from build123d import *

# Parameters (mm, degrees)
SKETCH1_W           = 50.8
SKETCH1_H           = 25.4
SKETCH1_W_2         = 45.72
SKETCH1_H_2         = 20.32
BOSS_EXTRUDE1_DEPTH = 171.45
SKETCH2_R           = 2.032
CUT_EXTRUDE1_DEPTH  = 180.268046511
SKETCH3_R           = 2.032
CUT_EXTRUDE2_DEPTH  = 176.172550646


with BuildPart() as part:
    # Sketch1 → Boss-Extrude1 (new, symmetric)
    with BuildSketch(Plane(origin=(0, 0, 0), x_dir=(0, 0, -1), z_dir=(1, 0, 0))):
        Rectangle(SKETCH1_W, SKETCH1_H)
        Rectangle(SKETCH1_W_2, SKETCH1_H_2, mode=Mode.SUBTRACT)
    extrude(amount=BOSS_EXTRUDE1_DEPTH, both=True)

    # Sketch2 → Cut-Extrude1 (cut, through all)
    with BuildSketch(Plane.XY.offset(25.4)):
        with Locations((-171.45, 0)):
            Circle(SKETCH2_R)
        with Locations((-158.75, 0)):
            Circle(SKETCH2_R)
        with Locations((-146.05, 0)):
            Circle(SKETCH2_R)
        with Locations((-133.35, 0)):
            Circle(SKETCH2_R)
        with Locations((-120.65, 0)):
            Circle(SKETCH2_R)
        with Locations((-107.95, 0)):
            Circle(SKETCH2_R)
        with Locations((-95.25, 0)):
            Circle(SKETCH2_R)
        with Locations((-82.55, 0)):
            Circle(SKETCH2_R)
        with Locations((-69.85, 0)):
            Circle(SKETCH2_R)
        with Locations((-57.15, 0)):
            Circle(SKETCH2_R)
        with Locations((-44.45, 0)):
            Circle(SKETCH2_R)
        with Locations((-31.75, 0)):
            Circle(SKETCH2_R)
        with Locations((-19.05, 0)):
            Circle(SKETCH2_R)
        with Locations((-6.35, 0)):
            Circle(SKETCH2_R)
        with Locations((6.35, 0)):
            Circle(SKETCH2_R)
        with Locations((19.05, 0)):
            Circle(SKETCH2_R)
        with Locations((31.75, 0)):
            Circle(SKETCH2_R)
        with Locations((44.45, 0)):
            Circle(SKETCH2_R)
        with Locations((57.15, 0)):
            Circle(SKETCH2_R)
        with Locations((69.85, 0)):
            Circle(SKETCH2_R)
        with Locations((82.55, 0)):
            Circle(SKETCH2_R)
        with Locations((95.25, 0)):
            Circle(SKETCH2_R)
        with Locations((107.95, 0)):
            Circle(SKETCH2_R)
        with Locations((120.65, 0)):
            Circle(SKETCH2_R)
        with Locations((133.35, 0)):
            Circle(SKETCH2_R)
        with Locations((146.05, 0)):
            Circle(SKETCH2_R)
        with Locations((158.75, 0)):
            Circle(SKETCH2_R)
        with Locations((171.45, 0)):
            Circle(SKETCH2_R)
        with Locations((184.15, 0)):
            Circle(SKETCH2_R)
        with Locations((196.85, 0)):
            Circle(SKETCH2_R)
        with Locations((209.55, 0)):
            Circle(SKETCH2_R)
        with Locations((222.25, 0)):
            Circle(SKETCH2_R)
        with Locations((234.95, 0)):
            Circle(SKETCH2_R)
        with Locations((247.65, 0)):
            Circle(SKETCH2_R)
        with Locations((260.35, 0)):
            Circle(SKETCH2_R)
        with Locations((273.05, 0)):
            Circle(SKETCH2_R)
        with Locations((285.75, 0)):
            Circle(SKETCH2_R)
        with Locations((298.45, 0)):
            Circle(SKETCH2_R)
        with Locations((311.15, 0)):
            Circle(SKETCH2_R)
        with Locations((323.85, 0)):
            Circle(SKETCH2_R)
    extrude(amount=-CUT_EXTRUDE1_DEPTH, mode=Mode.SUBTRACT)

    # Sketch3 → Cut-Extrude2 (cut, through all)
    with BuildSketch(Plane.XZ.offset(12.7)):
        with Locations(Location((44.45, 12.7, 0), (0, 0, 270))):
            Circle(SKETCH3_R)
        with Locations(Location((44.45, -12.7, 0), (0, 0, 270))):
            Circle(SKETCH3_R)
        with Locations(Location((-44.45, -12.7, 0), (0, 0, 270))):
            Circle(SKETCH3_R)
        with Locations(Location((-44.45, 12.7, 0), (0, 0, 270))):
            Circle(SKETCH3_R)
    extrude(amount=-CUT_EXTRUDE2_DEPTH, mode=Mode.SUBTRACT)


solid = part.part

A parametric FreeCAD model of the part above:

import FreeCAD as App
import Part
import Sketcher

V = App.Vector
Q = App.Units.Quantity


def add_polygon(sketch, points):
    """Adds a closed chain of lines whose ends are joined by coincident constraints."""
    first, n = sketch.GeometryCount, len(points)
    for a, b in zip(points, points[1:] + points[:1]):
        sketch.addGeometry(Part.LineSegment(App.Vector(*a, 0), App.Vector(*b, 0)), False)
    for i in range(n):
        sketch.addConstraint(Sketcher.Constraint("Coincident", first + i, 2, first + (i + 1) % n, 1))

doc = App.newDocument("Part")
body = doc.addObject("PartDesign::Body", "Body")

# Sketch on YZ plane
sketch1 = body.newObject("Sketcher::SketchObject", "Sketch")
sketch1.AttachmentSupport = (doc.getObject("YZ_Plane"), [""])
sketch1.MapMode = "FlatFace"
add_polygon(sketch1, [(12.7, 25.4), (-12.7, 25.4), (-12.7, -25.4), (12.7, -25.4)])  # lines 0-3
add_polygon(sketch1, [(-10.16, -22.86), (-10.16, 22.86), (10.16, 22.86), (10.16, -22.86)])  # lines 4-7
sketch1.addConstraint([
    Sketcher.Constraint("Horizontal", 0),
    Sketcher.Constraint("Vertical", 1),
    Sketcher.Constraint("Horizontal", 2),
    Sketcher.Constraint("Vertical", 3),
    Sketcher.Constraint("Vertical", 4),
    Sketcher.Constraint("Horizontal", 5),
    Sketcher.Constraint("Vertical", 6),
    Sketcher.Constraint("Horizontal", 7),
    Sketcher.Constraint("Symmetric", 0, 2, 2, 2, -1, 1),
    Sketcher.Constraint("Symmetric", 4, 2, 6, 2, -1, 1),
    Sketcher.Constraint("DistanceX", 0, 2, 0, 1, Q("1 in")),
    Sketcher.Constraint("DistanceY", 1, 2, 1, 1, Q("2 in")),
    Sketcher.Constraint("DistanceX", 5, 1, 5, 2, Q("0.8 in")),
    Sketcher.Constraint("DistanceY", 4, 1, 4, 2, Q("1.8 in")),
])
pad1 = body.newObject("PartDesign::Pad", "Pad")
pad1.Profile = sketch1
pad1.Length = Q("13.5 in")
pad1.Midplane = True

# Sketch on XY plane
sketch2 = body.newObject("Sketcher::SketchObject", "Sketch001")
sketch2.AttachmentSupport = (doc.getObject("XY_Plane"), [""])
sketch2.MapMode = "FlatFace"
sketch2.AttachmentOffset = App.Placement(V(0, 0, 1 * 25.4), App.Rotation())
sketch2.addGeometry([
    Part.Circle(V(-171.45, 0, 0), V(0, 0, 1), 2.032),  # 0
    Part.Circle(V(-158.75, 0, 0), V(0, 0, 1), 2.032),  # 1
    Part.Circle(V(-146.05, 0, 0), V(0, 0, 1), 2.032),  # 2
    Part.Circle(V(-133.35, 0, 0), V(0, 0, 1), 2.032),  # 3
    Part.Circle(V(-120.65, 0, 0), V(0, 0, 1), 2.032),  # 4
    Part.Circle(V(-107.95, 0, 0), V(0, 0, 1), 2.032),  # 5
    Part.Circle(V(-95.25, 0, 0), V(0, 0, 1), 2.032),  # 6
    Part.Circle(V(-82.55, 0, 0), V(0, 0, 1), 2.032),  # 7
    Part.Circle(V(-69.85, 0, 0), V(0, 0, 1), 2.032),  # 8
    Part.Circle(V(-57.15, 0, 0), V(0, 0, 1), 2.032),  # 9
    Part.Circle(V(-44.45, 0, 0), V(0, 0, 1), 2.032),  # 10
    Part.Circle(V(-31.75, 0, 0), V(0, 0, 1), 2.032),  # 11
    Part.Circle(V(-19.05, 0, 0), V(0, 0, 1), 2.032),  # 12
    Part.Circle(V(-6.35, 0, 0), V(0, 0, 1), 2.032),  # 13
    Part.Circle(V(6.35, 0, 0), V(0, 0, 1), 2.032),  # 14
    Part.Circle(V(19.05, 0, 0), V(0, 0, 1), 2.032),  # 15
    Part.Circle(V(31.75, 0, 0), V(0, 0, 1), 2.032),  # 16
    Part.Circle(V(44.45, 0, 0), V(0, 0, 1), 2.032),  # 17
    Part.Circle(V(57.15, 0, 0), V(0, 0, 1), 2.032),  # 18
    Part.Circle(V(69.85, 0, 0), V(0, 0, 1), 2.032),  # 19
    Part.Circle(V(82.55, 0, 0), V(0, 0, 1), 2.032),  # 20
    Part.Circle(V(95.25, 0, 0), V(0, 0, 1), 2.032),  # 21
    Part.Circle(V(107.95, 0, 0), V(0, 0, 1), 2.032),  # 22
    Part.Circle(V(120.65, 0, 0), V(0, 0, 1), 2.032),  # 23
    Part.Circle(V(133.35, 0, 0), V(0, 0, 1), 2.032),  # 24
    Part.Circle(V(146.05, 0, 0), V(0, 0, 1), 2.032),  # 25
    Part.Circle(V(158.75, 0, 0), V(0, 0, 1), 2.032),  # 26
    Part.Circle(V(171.45, 0, 0), V(0, 0, 1), 2.032),  # 27
    Part.Circle(V(184.15, 0, 0), V(0, 0, 1), 2.032),  # 28
    Part.Circle(V(196.85, 0, 0), V(0, 0, 1), 2.032),  # 29
    Part.Circle(V(209.55, 0, 0), V(0, 0, 1), 2.032),  # 30
    Part.Circle(V(222.25, 0, 0), V(0, 0, 1), 2.032),  # 31
    Part.Circle(V(234.95, 0, 0), V(0, 0, 1), 2.032),  # 32
    Part.Circle(V(247.65, 0, 0), V(0, 0, 1), 2.032),  # 33
    Part.Circle(V(260.35, 0, 0), V(0, 0, 1), 2.032),  # 34
    Part.Circle(V(273.05, 0, 0), V(0, 0, 1), 2.032),  # 35
    Part.Circle(V(285.75, 0, 0), V(0, 0, 1), 2.032),  # 36
    Part.Circle(V(298.45, 0, 0), V(0, 0, 1), 2.032),  # 37
    Part.Circle(V(311.15, 0, 0), V(0, 0, 1), 2.032),  # 38
    Part.Circle(V(323.85, 0, 0), V(0, 0, 1), 2.032),  # 39
], False)
sketch2.addConstraint([
    Sketcher.Constraint("Equal", 0, 1),
    Sketcher.Constraint("Equal", 1, 2),
    Sketcher.Constraint("Equal", 2, 3),
    Sketcher.Constraint("Equal", 3, 4),
    Sketcher.Constraint("Equal", 4, 5),
    Sketcher.Constraint("Equal", 5, 6),
    Sketcher.Constraint("Equal", 6, 7),
    Sketcher.Constraint("Equal", 7, 8),
    Sketcher.Constraint("Equal", 8, 9),
    Sketcher.Constraint("Equal", 9, 10),
    Sketcher.Constraint("Equal", 10, 11),
    Sketcher.Constraint("Equal", 11, 12),
    Sketcher.Constraint("Equal", 12, 13),
    Sketcher.Constraint("Equal", 13, 14),
    Sketcher.Constraint("Equal", 14, 15),
    Sketcher.Constraint("Equal", 15, 16),
    Sketcher.Constraint("Equal", 16, 17),
    Sketcher.Constraint("Equal", 17, 18),
    Sketcher.Constraint("Equal", 18, 19),
    Sketcher.Constraint("Equal", 19, 20),
    Sketcher.Constraint("Equal", 20, 21),
    Sketcher.Constraint("Equal", 21, 22),
    Sketcher.Constraint("Equal", 22, 23),
    Sketcher.Constraint("Equal", 23, 24),
    Sketcher.Constraint("Equal", 24, 25),
    Sketcher.Constraint("Equal", 25, 26),
    Sketcher.Constraint("Equal", 26, 27),
    Sketcher.Constraint("Equal", 27, 28),
    Sketcher.Constraint("Equal", 28, 29),
    Sketcher.Constraint("Equal", 29, 30),
    Sketcher.Constraint("Equal", 30, 31),
    Sketcher.Constraint("Equal", 31, 32),
    Sketcher.Constraint("Equal", 32, 33),
    Sketcher.Constraint("Equal", 33, 34),
    Sketcher.Constraint("Equal", 34, 35),
    Sketcher.Constraint("Equal", 35, 36),
    Sketcher.Constraint("Equal", 36, 37),
    Sketcher.Constraint("Equal", 37, 38),
    Sketcher.Constraint("Equal", 38, 39),
    Sketcher.Constraint("Symmetric", 13, 3, 14, 3, -1, 1),
    Sketcher.Constraint("Symmetric", 12, 3, 15, 3, -1, 1),
    Sketcher.Constraint("Symmetric", 11, 3, 16, 3, -1, 1),
    Sketcher.Constraint("Symmetric", 10, 3, 17, 3, -1, 1),
    Sketcher.Constraint("Symmetric", 9, 3, 18, 3, -1, 1),
    Sketcher.Constraint("Symmetric", 8, 3, 19, 3, -1, 1),
    Sketcher.Constraint("Symmetric", 7, 3, 20, 3, -1, 1),
    Sketcher.Constraint("Symmetric", 6, 3, 21, 3, -1, 1),
    Sketcher.Constraint("Symmetric", 5, 3, 22, 3, -1, 1),
    Sketcher.Constraint("Symmetric", 4, 3, 23, 3, -1, 1),
    Sketcher.Constraint("Symmetric", 3, 3, 24, 3, -1, 1),
    Sketcher.Constraint("Symmetric", 2, 3, 25, 3, -1, 1),
    Sketcher.Constraint("Symmetric", 1, 3, 26, 3, -1, 1),
    Sketcher.Constraint("Symmetric", 0, 3, 27, 3, -1, 1),
    Sketcher.Constraint("PointOnObject", 0, 3, -1),
    Sketcher.Constraint("PointOnObject", 1, 3, -1),
    Sketcher.Constraint("PointOnObject", 2, 3, -1),
    Sketcher.Constraint("PointOnObject", 3, 3, -1),
    Sketcher.Constraint("PointOnObject", 4, 3, -1),
    Sketcher.Constraint("PointOnObject", 5, 3, -1),
    Sketcher.Constraint("PointOnObject", 6, 3, -1),
    Sketcher.Constraint("PointOnObject", 7, 3, -1),
    Sketcher.Constraint("PointOnObject", 8, 3, -1),
    Sketcher.Constraint("PointOnObject", 9, 3, -1),
    Sketcher.Constraint("PointOnObject", 10, 3, -1),
    Sketcher.Constraint("PointOnObject", 11, 3, -1),
    Sketcher.Constraint("PointOnObject", 12, 3, -1),
    Sketcher.Constraint("PointOnObject", 13, 3, -1),
    Sketcher.Constraint("PointOnObject", 28, 3, -1),
    Sketcher.Constraint("PointOnObject", 29, 3, -1),
    Sketcher.Constraint("PointOnObject", 30, 3, -1),
    Sketcher.Constraint("PointOnObject", 31, 3, -1),
    Sketcher.Constraint("PointOnObject", 32, 3, -1),
    Sketcher.Constraint("PointOnObject", 33, 3, -1),
    Sketcher.Constraint("PointOnObject", 34, 3, -1),
    Sketcher.Constraint("PointOnObject", 35, 3, -1),
    Sketcher.Constraint("PointOnObject", 36, 3, -1),
    Sketcher.Constraint("PointOnObject", 37, 3, -1),
    Sketcher.Constraint("PointOnObject", 38, 3, -1),
    Sketcher.Constraint("PointOnObject", 39, 3, -1),
    Sketcher.Constraint("Diameter", 0, Q("0.16 in")),
    Sketcher.Constraint("DistanceX", 0, 3, 2, 3, Q("1 in")),
    Sketcher.Constraint("DistanceX", 1, 3, 3, 3, Q("1 in")),
    Sketcher.Constraint("DistanceX", 2, 3, 4, 3, Q("1 in")),
    Sketcher.Constraint("DistanceX", 3, 3, 5, 3, Q("1 in")),
    Sketcher.Constraint("DistanceX", 4, 3, 6, 3, Q("1 in")),
    Sketcher.Constraint("DistanceX", 5, 3, 7, 3, Q("1 in")),
    Sketcher.Constraint("DistanceX", 6, 3, 8, 3, Q("1 in")),
    Sketcher.Constraint("DistanceX", 7, 3, 9, 3, Q("1 in")),
    Sketcher.Constraint("DistanceX", 8, 3, 10, 3, Q("1 in")),
    Sketcher.Constraint("DistanceX", 9, 3, 11, 3, Q("1 in")),
    Sketcher.Constraint("DistanceX", 10, 3, 12, 3, Q("1 in")),
    Sketcher.Constraint("DistanceX", 11, 3, 13, 3, Q("1 in")),
    Sketcher.Constraint("DistanceX", 12, 3, 14, 3, Q("1 in")),
    Sketcher.Constraint("DistanceX", 26, 3, 28, 3, Q("1 in")),
    Sketcher.Constraint("DistanceX", 27, 3, 29, 3, Q("1 in")),
    Sketcher.Constraint("DistanceX", 28, 3, 30, 3, Q("1 in")),
    Sketcher.Constraint("DistanceX", 29, 3, 31, 3, Q("1 in")),
    Sketcher.Constraint("DistanceX", 30, 3, 32, 3, Q("1 in")),
    Sketcher.Constraint("DistanceX", 31, 3, 33, 3, Q("1 in")),
    Sketcher.Constraint("DistanceX", 32, 3, 34, 3, Q("1 in")),
    Sketcher.Constraint("DistanceX", 33, 3, 35, 3, Q("1 in")),
    Sketcher.Constraint("DistanceX", 34, 3, 36, 3, Q("1 in")),
    Sketcher.Constraint("DistanceX", 35, 3, 37, 3, Q("1 in")),
    Sketcher.Constraint("DistanceX", 36, 3, 38, 3, Q("1 in")),
    Sketcher.Constraint("DistanceX", 37, 3, 39, 3, Q("1 in")),
    Sketcher.Constraint("DistanceX", 0, 3, 1, 3, Q("0.5 in")),
])
pocket1 = body.newObject("PartDesign::Pocket", "Pocket")
pocket1.Profile = sketch2
pocket1.Type = "ThroughAll"

# Sketch on XZ plane
sketch3 = body.newObject("Sketcher::SketchObject", "Sketch002")
sketch3.AttachmentSupport = (doc.getObject("XZ_Plane"), [""])
sketch3.MapMode = "FlatFace"
sketch3.AttachmentOffset = App.Placement(V(0, 0, 0.5 * 25.4), App.Rotation())
sketch3.addGeometry([
    Part.Circle(V(44.45, 12.7, 0), V(0, 0, 1), 2.032),
    Part.Circle(V(44.45, -12.7, 0), V(0, 0, 1), 2.032),
    Part.Circle(V(-44.45, -12.7, 0), V(0, 0, 1), 2.032),
    Part.Circle(V(-44.45, 12.7, 0), V(0, 0, 1), 2.032),
], False)
sketch3.addConstraint([
    Sketcher.Constraint("Equal", 0, 1),
    Sketcher.Constraint("Equal", 1, 2),
    Sketcher.Constraint("Equal", 2, 3),
    Sketcher.Constraint("Symmetric", 0, 3, 2, 3, -1, 1),
    Sketcher.Constraint("Symmetric", 1, 3, 3, 3, -1, 1),
    Sketcher.Constraint("Symmetric", 1, 3, 2, 3, -2),
    Sketcher.Constraint("Diameter", 0, Q("0.16 in")),
    Sketcher.Constraint("DistanceY", 1, 3, 0, 3, Q("1 in")),
    Sketcher.Constraint("DistanceX", 2, 3, 1, 3, Q("3.5 in")),
])
pocket2 = body.newObject("PartDesign::Pocket", "Pocket001")
pocket2.Profile = sketch3
pocket2.Type = "ThroughAll"

doc.recompute()
